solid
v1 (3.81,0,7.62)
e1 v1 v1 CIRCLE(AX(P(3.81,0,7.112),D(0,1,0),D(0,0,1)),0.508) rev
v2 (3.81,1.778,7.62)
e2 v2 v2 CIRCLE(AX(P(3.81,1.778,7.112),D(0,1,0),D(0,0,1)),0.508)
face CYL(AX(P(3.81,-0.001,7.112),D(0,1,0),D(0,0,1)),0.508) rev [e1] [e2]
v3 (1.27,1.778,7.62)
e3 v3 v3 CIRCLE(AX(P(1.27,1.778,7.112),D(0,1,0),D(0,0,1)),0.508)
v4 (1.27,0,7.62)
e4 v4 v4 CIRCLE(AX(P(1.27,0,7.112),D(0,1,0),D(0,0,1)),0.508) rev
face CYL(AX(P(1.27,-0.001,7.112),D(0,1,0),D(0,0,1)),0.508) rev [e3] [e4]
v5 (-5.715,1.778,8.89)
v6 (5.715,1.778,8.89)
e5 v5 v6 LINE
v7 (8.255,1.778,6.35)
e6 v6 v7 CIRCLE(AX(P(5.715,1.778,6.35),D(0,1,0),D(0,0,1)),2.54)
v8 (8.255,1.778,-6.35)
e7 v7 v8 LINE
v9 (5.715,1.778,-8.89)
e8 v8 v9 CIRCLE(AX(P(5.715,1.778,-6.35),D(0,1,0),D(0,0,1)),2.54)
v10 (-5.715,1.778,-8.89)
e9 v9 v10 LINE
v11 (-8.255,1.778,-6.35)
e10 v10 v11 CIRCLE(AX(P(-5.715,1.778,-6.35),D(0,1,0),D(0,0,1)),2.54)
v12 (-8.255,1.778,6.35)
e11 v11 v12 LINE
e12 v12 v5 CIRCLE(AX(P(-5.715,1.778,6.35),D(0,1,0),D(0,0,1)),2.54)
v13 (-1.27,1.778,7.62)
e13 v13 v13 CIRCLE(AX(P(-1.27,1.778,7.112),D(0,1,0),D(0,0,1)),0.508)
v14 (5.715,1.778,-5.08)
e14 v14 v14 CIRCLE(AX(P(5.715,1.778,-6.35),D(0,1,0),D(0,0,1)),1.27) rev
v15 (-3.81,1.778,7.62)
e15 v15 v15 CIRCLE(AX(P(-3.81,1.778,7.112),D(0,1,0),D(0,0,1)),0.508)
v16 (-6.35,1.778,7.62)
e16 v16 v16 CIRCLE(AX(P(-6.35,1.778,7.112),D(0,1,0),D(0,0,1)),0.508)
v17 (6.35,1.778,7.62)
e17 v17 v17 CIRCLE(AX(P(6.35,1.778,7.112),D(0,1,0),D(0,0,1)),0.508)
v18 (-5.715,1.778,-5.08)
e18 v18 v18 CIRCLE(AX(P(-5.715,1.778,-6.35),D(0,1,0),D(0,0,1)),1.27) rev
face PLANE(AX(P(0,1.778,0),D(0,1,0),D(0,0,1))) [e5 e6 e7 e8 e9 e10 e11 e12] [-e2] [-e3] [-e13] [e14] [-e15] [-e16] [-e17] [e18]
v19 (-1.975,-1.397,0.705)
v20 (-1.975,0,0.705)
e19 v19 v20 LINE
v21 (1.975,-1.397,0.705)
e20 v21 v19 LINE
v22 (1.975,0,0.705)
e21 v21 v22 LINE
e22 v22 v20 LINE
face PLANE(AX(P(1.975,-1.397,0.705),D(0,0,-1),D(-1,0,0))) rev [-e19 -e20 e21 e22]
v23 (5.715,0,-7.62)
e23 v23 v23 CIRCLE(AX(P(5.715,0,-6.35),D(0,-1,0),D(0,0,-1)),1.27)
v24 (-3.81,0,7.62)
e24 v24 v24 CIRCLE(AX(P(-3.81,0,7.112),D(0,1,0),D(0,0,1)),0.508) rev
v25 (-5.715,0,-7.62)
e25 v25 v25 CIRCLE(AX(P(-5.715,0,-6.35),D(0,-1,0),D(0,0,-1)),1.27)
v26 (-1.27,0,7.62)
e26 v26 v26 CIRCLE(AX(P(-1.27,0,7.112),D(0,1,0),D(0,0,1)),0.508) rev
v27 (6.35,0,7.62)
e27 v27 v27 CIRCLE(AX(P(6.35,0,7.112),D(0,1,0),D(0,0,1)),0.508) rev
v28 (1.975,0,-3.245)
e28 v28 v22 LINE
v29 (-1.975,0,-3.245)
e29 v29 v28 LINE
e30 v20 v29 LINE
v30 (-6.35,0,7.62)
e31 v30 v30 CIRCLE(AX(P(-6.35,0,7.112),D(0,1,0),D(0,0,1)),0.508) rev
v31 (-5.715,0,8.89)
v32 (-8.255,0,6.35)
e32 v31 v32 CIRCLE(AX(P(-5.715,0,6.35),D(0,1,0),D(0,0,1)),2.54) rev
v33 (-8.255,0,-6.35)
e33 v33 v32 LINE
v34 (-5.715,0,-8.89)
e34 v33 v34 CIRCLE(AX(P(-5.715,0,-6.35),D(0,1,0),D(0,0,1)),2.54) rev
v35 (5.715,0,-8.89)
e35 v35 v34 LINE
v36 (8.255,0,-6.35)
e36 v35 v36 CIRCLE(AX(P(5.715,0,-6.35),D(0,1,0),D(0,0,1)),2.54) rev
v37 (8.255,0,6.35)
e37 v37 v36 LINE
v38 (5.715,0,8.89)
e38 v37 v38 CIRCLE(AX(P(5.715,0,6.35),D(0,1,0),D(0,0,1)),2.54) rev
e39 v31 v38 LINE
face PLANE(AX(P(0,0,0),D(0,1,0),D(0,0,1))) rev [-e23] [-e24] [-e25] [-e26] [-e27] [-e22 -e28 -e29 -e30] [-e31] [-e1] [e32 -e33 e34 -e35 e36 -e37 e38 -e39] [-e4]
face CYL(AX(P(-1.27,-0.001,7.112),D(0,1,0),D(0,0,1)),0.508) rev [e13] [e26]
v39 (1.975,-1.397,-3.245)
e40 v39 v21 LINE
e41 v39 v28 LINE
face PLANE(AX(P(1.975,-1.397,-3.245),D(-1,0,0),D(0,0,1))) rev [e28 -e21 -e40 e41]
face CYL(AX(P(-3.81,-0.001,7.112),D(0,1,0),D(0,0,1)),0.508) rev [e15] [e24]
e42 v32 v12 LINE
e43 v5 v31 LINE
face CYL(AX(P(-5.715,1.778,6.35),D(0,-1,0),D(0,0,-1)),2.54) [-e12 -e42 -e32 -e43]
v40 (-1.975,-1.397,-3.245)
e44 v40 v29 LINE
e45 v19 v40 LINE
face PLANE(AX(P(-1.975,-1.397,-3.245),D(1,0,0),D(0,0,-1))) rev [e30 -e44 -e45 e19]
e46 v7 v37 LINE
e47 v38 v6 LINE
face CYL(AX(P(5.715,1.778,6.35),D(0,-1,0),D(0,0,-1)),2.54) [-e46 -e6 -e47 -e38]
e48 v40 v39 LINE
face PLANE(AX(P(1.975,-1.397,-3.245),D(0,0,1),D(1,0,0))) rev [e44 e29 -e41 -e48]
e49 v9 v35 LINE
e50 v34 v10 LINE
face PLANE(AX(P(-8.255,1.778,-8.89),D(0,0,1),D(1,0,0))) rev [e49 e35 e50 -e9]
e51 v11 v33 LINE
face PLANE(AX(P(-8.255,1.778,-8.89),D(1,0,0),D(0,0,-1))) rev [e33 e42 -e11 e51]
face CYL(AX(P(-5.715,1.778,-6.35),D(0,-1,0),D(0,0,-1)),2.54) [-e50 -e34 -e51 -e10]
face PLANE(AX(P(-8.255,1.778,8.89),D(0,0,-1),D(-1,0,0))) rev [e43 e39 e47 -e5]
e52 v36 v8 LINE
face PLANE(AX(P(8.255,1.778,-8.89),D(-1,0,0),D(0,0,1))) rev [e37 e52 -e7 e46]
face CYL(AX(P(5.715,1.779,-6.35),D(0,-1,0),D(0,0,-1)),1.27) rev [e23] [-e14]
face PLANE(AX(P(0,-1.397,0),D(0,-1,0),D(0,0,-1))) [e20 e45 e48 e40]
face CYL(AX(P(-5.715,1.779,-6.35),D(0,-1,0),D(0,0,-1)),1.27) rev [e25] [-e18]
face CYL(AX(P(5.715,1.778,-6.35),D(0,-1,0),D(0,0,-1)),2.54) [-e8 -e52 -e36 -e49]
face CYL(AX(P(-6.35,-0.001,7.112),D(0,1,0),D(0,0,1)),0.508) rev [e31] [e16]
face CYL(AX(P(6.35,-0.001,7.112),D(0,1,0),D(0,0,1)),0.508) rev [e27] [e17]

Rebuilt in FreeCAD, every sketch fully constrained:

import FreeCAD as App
import Part
import Sketcher

V = App.Vector
Q = App.Units.Quantity


def edges_at(feature, points):
    """Names of the edges that pass closest to the given points."""
    edges = feature.Shape.Edges
    near = lambda p: min(range(len(edges)), key=lambda i: edges[i].distToShape(Part.Vertex(*p))[0])
    return sorted({f"Edge{near(p) + 1}" for p in points})

doc = App.newDocument("Part")
body = doc.addObject("PartDesign::Body", "Body")

# Sketch on XZ plane
sketch1 = body.newObject("Sketcher::SketchObject", "Sketch")
sketch1.AttachmentSupport = (doc.getObject("XZ_Plane"), [""])
sketch1.MapMode = "FlatFace"
sketch1.addGeometry([
    Part.LineSegment(V(-8, -9, 0), V(-8, 9, 0)),
    Part.LineSegment(V(-8, 9, 0), V(8, 9, 0)),
    Part.LineSegment(V(8, 9, 0), V(8, -9, 0)),
    Part.LineSegment(V(8, -9, 0), V(-8, -9, 0)),
], False)
sketch1.addConstraint([
    Sketcher.Constraint("Coincident", 0, 2, 1, 1),
    Sketcher.Constraint("Coincident", 1, 2, 2, 1),
    Sketcher.Constraint("Coincident", 2, 2, 3, 1),
    Sketcher.Constraint("Coincident", 3, 2, 0, 1),
    Sketcher.Constraint("Vertical", 0),
    Sketcher.Constraint("Horizontal", 1),
    Sketcher.Constraint("Vertical", 2),
    Sketcher.Constraint("Horizontal", 3),
    Sketcher.Constraint("Symmetric", 0, 2, 2, 2, -1, 1),
    Sketcher.Constraint("DistanceY", 0, 1, 0, 2, Q("0.7 in")),
    Sketcher.Constraint("DistanceX", 1, 1, 1, 2, Q("0.65 in")),
])
pad1 = body.newObject("PartDesign::Pad", "Pad")
pad1.Profile = sketch1
pad1.Length = Q("0.07 in")
pad1.Reversed = True
doc.recompute()

fillet = body.newObject("PartDesign::Fillet", "Fillet")
fillet.Base = (pad1, edges_at(pad1, [
    (8.255, 0.889, 8.89),
    (-8.255, 0.889, 8.89),
    (-8.255, 0.889, -8.89),
    (8.255, 0.889, -8.89),
]))
fillet.Radius = Q("0.1 in")

# Sketch on XZ plane
sketch2 = body.newObject("Sketcher::SketchObject", "Sketch001")
sketch2.AttachmentSupport = (doc.getObject("XZ_Plane"), [""])
sketch2.MapMode = "FlatFace"
sketch2.AttachmentOffset = App.Placement(V(0, 0, -0.07 * 25.4), App.Rotation())
sketch2.addGeometry(Part.Circle(V(-6.3, 7.1, 0), V(0, 0, 1), 0.5), False)
sketch2.addConstraint([
    Sketcher.Constraint("Diameter", 0, Q("0.04 in")),
    Sketcher.Constraint("DistanceX", 0, 3, -1, 1, Q("0.25 in")),
    Sketcher.Constraint("DistanceY", -1, 1, 0, 3, Q("0.28 in")),
])
pocket1 = body.newObject("PartDesign::Pocket", "Pocket")
pocket1.Profile = sketch2
pocket1.Type = "UpToFirst"
pocket1.Reversed = True

# Sketch on XZ plane
sketch3 = body.newObject("Sketcher::SketchObject", "Sketch002")
sketch3.AttachmentSupport = (doc.getObject("XZ_Plane"), [""])
sketch3.MapMode = "FlatFace"
sketch3.AttachmentOffset = App.Placement(V(0, 0, -0.07 * 25.4), App.Rotation())
sketch3.addGeometry(Part.Circle(V(-3.8, 7.1, 0), V(0, 0, 1), 0.5), False)
sketch3.addConstraint([
    Sketcher.Constraint("Diameter", 0, Q("0.04 in")),
    Sketcher.Constraint("DistanceX", 0, 3, -1, 1, Q("0.15 in")),
    Sketcher.Constraint("DistanceY", -1, 1, 0, 3, Q("0.28 in")),
])
pocket2 = body.newObject("PartDesign::Pocket", "Pocket001")
pocket2.Profile = sketch3
pocket2.Type = "UpToFirst"
pocket2.Reversed = True

# Sketch on XZ plane
sketch4 = body.newObject("Sketcher::SketchObject", "Sketch003")
sketch4.AttachmentSupport = (doc.getObject("XZ_Plane"), [""])
sketch4.MapMode = "FlatFace"
sketch4.AttachmentOffset = App.Placement(V(0, 0, -0.07 * 25.4), App.Rotation())
sketch4.addGeometry(Part.Circle(V(-1.3, 7.1, 0), V(0, 0, 1), 0.5), False)
sketch4.addConstraint([
    Sketcher.Constraint("Diameter", 0, Q("0.04 in")),
    Sketcher.Constraint("DistanceX", 0, 3, -1, 1, Q("0.05 in")),
    Sketcher.Constraint("DistanceY", -1, 1, 0, 3, Q("0.28 in")),
])
pocket3 = body.newObject("PartDesign::Pocket", "Pocket002")
pocket3.Profile = sketch4
pocket3.Type = "UpToFirst"
pocket3.Reversed = True

# Sketch on XZ plane
sketch5 = body.newObject("Sketcher::SketchObject", "Sketch004")
sketch5.AttachmentSupport = (doc.getObject("XZ_Plane"), [""])
sketch5.MapMode = "FlatFace"
sketch5.AttachmentOffset = App.Placement(V(0, 0, -0.07 * 25.4), App.Rotation())
sketch5.addGeometry(Part.Circle(V(1.3, 7.1, 0), V(0, 0, 1), 0.5), False)
sketch5.addConstraint([
    Sketcher.Constraint("Diameter", 0, Q("0.04 in")),
    Sketcher.Constraint("DistanceX", -1, 1, 0, 3, Q("0.05 in")),
    Sketcher.Constraint("DistanceY", -1, 1, 0, 3, Q("0.28 in")),
])
pocket4 = body.newObject("PartDesign::Pocket", "Pocket003")
pocket4.Profile = sketch5
pocket4.Type = "UpToFirst"
pocket4.Reversed = True

# Sketch on XZ plane
sketch6 = body.newObject("Sketcher::SketchObject", "Sketch005")
sketch6.AttachmentSupport = (doc.getObject("XZ_Plane"), [""])
sketch6.MapMode = "FlatFace"
sketch6.AttachmentOffset = App.Placement(V(0, 0, -0.07 * 25.4), App.Rotation())
sketch6.addGeometry(Part.Circle(V(3.8, 7.1, 0), V(0, 0, 1), 0.5), False)
sketch6.addConstraint([
    Sketcher.Constraint("Diameter", 0, Q("0.04 in")),
    Sketcher.Constraint("DistanceX", -1, 1, 0, 3, Q("0.15 in")),
    Sketcher.Constraint("DistanceY", -1, 1, 0, 3, Q("0.28 in")),
])
pocket5 = body.newObject("PartDesign::Pocket", "Pocket004")
pocket5.Profile = sketch6
pocket5.Type = "UpToFirst"
pocket5.Reversed = True

# Sketch on XZ plane
sketch7 = body.newObject("Sketcher::SketchObject", "Sketch006")
sketch7.AttachmentSupport = (doc.getObject("XZ_Plane"), [""])
sketch7.MapMode = "FlatFace"
sketch7.AttachmentOffset = App.Placement(V(0, 0, -0.07 * 25.4), App.Rotation())
sketch7.addGeometry(Part.Circle(V(6.3, 7.1, 0), V(0, 0, 1), 0.5), False)
sketch7.addConstraint([
    Sketcher.Constraint("Diameter", 0, Q("0.04 in")),
    Sketcher.Constraint("DistanceX", -1, 1, 0, 3, Q("0.25 in")),
    Sketcher.Constraint("DistanceY", -1, 1, 0, 3, Q("0.28 in")),
])
pocket6 = body.newObject("PartDesign::Pocket", "Pocket005")
pocket6.Profile = sketch7
pocket6.Type = "UpToFirst"
pocket6.Reversed = True

# Sketch on XZ plane
sketch8 = body.newObject("Sketcher::SketchObject", "Sketch007")
sketch8.AttachmentSupport = (doc.getObject("XZ_Plane"), [""])
sketch8.MapMode = "FlatFace"
sketch8.addGeometry([
    Part.LineSegment(V(2, -3.2, 0), V(2, 0.7, 0)),
    Part.LineSegment(V(2, 0.7, 0), V(-2, 0.7, 0)),
    Part.LineSegment(V(-2, 0.7, 0), V(-2, -3.2, 0)),
    Part.LineSegment(V(-2, -3.2, 0), V(2, -3.2, 0)),
], False)
sketch8.addConstraint([
    Sketcher.Constraint("Coincident", 0, 2, 1, 1),
    Sketcher.Constraint("Coincident", 1, 2, 2, 1),
    Sketcher.Constraint("Coincident", 2, 2, 3, 1),
    Sketcher.Constraint("Coincident", 3, 2, 0, 1),
    Sketcher.Constraint("Vertical", 0),
    Sketcher.Constraint("Horizontal", 1),
    Sketcher.Constraint("Vertical", 2),
    Sketcher.Constraint("Horizontal", 3),
    Sketcher.Constraint("Equal", 3, 0),
    Sketcher.Constraint("DistanceX", 1, 2, 1, 1, Q("3.95 mm")),
    Sketcher.Constraint("DistanceX", -1, 1, 0, 2, Q("1.975 mm")),
    Sketcher.Constraint("DistanceY", -1, 1, 0, 2, Q("0.705 mm")),
])
pad2 = body.newObject("PartDesign::Pad", "Pad001")
pad2.Profile = sketch8
pad2.Length = Q("0.055 in")

# Sketch on XZ plane
sketch9 = body.newObject("Sketcher::SketchObject", "Sketch008")
sketch9.AttachmentSupport = (doc.getObject("XZ_Plane"), [""])
sketch9.MapMode = "FlatFace"
sketch9.addGeometry(Part.Circle(V(5.7, -6.3, 0), V(0, 0, 1), 1.3), False)
sketch9.addConstraint([
    Sketcher.Constraint("Diameter", 0, Q("0.1 in")),
    Sketcher.Constraint("DistanceY", 0, 3, -1, 1, Q("0.25 in")),
    Sketcher.Constraint("DistanceX", -1, 1, 0, 3, Q("0.225 in")),
])
pocket7 = body.newObject("PartDesign::Pocket", "Pocket006")
pocket7.Profile = sketch9
pocket7.Type = "UpToFirst"

# Sketch on XZ plane
sketch10 = body.newObject("Sketcher::SketchObject", "Sketch009")
sketch10.AttachmentSupport = (doc.getObject("XZ_Plane"), [""])
sketch10.MapMode = "FlatFace"
sketch10.addGeometry(Part.Circle(V(-5.7, -6.3, 0), V(0, 0, 1), 1.3), False)
sketch10.addConstraint([
    Sketcher.Constraint("Diameter", 0, Q("0.1 in")),
    Sketcher.Constraint("DistanceY", 0, 3, -1, 1, Q("0.25 in")),
    Sketcher.Constraint("DistanceX", 0, 3, -1, 1, Q("0.225 in")),
])
pocket8 = body.newObject("PartDesign::Pocket", "Pocket007")
pocket8.Profile = sketch10
pocket8.Type = "UpToFirst"

doc.recompute()
